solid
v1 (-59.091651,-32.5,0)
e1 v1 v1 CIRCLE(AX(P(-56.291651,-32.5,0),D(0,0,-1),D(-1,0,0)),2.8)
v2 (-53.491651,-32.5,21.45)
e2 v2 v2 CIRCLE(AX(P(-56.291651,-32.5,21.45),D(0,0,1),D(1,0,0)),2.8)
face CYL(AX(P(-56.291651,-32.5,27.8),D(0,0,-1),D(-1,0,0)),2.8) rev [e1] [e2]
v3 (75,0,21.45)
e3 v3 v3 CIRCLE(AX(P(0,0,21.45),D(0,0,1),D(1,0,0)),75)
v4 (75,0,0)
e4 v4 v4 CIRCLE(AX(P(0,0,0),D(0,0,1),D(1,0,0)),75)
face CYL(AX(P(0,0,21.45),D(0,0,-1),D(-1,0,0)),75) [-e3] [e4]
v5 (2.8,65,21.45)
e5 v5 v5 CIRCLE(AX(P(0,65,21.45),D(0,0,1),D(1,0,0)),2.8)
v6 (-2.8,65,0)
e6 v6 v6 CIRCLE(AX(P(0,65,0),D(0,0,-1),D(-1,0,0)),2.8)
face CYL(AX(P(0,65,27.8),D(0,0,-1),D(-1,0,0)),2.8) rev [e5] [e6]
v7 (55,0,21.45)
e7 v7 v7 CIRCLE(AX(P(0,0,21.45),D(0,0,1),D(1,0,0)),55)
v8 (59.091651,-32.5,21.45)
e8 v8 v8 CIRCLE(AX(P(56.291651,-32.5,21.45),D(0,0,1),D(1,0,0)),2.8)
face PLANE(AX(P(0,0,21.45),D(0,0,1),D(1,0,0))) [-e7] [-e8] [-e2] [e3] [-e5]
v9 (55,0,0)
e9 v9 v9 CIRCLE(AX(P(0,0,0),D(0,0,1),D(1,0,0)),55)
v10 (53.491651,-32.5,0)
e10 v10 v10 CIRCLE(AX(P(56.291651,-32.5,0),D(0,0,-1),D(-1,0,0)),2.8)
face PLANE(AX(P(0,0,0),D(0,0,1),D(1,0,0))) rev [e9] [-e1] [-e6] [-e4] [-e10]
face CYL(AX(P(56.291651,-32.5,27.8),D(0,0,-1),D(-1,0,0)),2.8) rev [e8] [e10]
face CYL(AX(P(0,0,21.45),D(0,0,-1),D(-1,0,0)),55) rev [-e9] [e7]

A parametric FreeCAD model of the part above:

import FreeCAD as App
import Part
import Sketcher
from FreeCAD import Vector

doc = App.newDocument("Part")
body = doc.addObject("PartDesign::Body", "Body")

sketch1 = body.newObject("Sketcher::SketchObject", "Sketch")
sketch1.AttachmentSupport = (doc.getObject("XY_Plane"), [""])
sketch1.MapMode = "FlatFace"
sketch1.addGeometry(Part.Circle(Vector(0, 0, 0), Vector(0, 0, 1), 75), False)
sketch1.addGeometry(Part.Circle(Vector(0, 0, 0), Vector(0, 0, 1), 55), False)
sketch1.addConstraint(Sketcher.Constraint("Coincident", 0, 3, -1, 1))
sketch1.addConstraint(Sketcher.Constraint("Coincident", 1, 3, -1, 1))
sketch1.addConstraint(Sketcher.Constraint("Diameter", 0, 150.0))
sketch1.addConstraint(Sketcher.Constraint("Diameter", 1, 110.0))
pad1 = body.newObject("PartDesign::Pad", "Pad")
pad1.Profile = sketch1
pad1.Length = 21.45

sketch2 = body.newObject("Sketcher::SketchObject", "Sketch001")
sketch2.AttachmentSupport = (doc.getObject("XY_Plane"), [""])
sketch2.MapMode = "FlatFace"
sketch2.addGeometry(Part.Circle(Vector(0, 65, 0), Vector(0, 0, 1), 2.8), False)
sketch2.addGeometry(Part.Circle(Vector(-56.291651, -32.5, 0), Vector(0, 0, 1), 2.8), False)
sketch2.addGeometry(Part.Circle(Vector(56.291651, -32.5, 0), Vector(0, 0, 1), 2.8), False)
sketch2.addConstraint(Sketcher.Constraint("Equal", 0, 1))
sketch2.addConstraint(Sketcher.Constraint("Equal", 1, 2))
sketch2.addConstraint(Sketcher.Constraint("Symmetric", 1, 3, 2, 3, -2))
sketch2.addConstraint(Sketcher.Constraint("PointOnObject", 0, 3, -2))
sketch2.addConstraint(Sketcher.Constraint("Diameter", 0, 5.6))
sketch2.addConstraint(Sketcher.Constraint("DistanceY", -1, 1, 0, 3, 65.0))
sketch2.addConstraint(Sketcher.Constraint("DistanceY", 1, 3, -1, 1, 32.5))
sketch2.addConstraint(Sketcher.Constraint("DistanceX", 1, 3, -1, 1, 56.291651))
pocket1 = body.newObject("PartDesign::Pocket", "Pocket")
pocket1.Profile = sketch2
pocket1.Length = 27.8
pocket1.Reversed = True

doc.recompute()
